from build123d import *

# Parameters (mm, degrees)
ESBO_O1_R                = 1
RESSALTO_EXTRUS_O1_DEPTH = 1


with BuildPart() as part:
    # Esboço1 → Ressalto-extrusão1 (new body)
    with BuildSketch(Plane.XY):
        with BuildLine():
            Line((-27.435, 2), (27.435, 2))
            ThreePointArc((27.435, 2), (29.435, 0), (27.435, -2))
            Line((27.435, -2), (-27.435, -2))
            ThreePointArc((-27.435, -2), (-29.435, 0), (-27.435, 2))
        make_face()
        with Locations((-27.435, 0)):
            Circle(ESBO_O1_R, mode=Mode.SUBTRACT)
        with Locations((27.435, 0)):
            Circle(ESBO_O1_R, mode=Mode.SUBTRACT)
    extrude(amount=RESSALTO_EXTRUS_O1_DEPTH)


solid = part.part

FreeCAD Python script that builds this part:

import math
import FreeCAD as App
import Part
import Sketcher
from FreeCAD import Vector
Q = App.Units.Quantity

doc = App.newDocument("Part")
params = doc.addObject("Spreadsheet::Sheet", "Params")
for row, (alias, value) in enumerate([
    ("sketch1_diameter", "2 mm"),
    ("sketch1_radius", "2 mm"),
    ("sketch1_width", "54.87 mm"),
    ("pad1_length", "1 mm"),
], start=1):
    params.set(f"A{row}", alias)
    params.set(f"B{row}", "=" + value)
    params.setAlias(f"B{row}", alias)

body = doc.addObject("PartDesign::Body", "Body")

# Sketch on XY plane
sketch1 = body.newObject("Sketcher::SketchObject", "Sketch")
sketch1.AttachmentSupport = (doc.getObject("XY_Plane"), [""])
sketch1.MapMode = "FlatFace"
sketch1.addGeometry(Part.LineSegment(Vector(27.4, 2, 0), Vector(-27.4, 2, 0)), False)
sketch1.addGeometry(Part.ArcOfCircle(Part.Circle(Vector(-27.4, 0, 0), Vector(0, 0, 1), 2), math.radians(90), math.radians(270)), False)
sketch1.addGeometry(Part.LineSegment(Vector(-27.4, -2, 0), Vector(27.4, -2, 0)), False)
sketch1.addGeometry(Part.ArcOfCircle(Part.Circle(Vector(27.4, 0, 0), Vector(0, 0, 1), 2), math.radians(-90), math.radians(90)), False)
sketch1.addGeometry(Part.Circle(Vector(27.4, 0, 0), Vector(0, 0, 1), 1), False)
sketch1.addGeometry(Part.Circle(Vector(-27.4, 0, 0), Vector(0, 0, 1), 1), False)
sketch1.addConstraint(Sketcher.Constraint("Tangent", 0, 2, 1, 1))
sketch1.addConstraint(Sketcher.Constraint("Tangent", 1, 2, 2, 1))
sketch1.addConstraint(Sketcher.Constraint("Tangent", 2, 2, 3, 1))
sketch1.addConstraint(Sketcher.Constraint("Tangent", 3, 2, 0, 1))
sketch1.addConstraint(Sketcher.Constraint("Horizontal", 0))
sketch1.addConstraint(Sketcher.Constraint("Horizontal", 2))
sketch1.addConstraint(Sketcher.Constraint("Coincident", 4, 3, 3, 3))
sketch1.addConstraint(Sketcher.Constraint("Coincident", 5, 3, 1, 3))
sketch1.addConstraint(Sketcher.Constraint("Equal", 4, 5))
sketch1.addConstraint(Sketcher.Constraint("Symmetric", 1, 3, 3, 3, -1, 1))
sketch1.addConstraint(Sketcher.Constraint("Diameter", 4, Q("2 mm")))
sketch1.addConstraint(Sketcher.Constraint("Radius", 1, Q("2 mm")))
sketch1.addConstraint(Sketcher.Constraint("DistanceX", 0, 2, 0, 1, Q("54.87 mm")))
sketch1.setExpression("Constraints[10]", "Params.sketch1_diameter")
sketch1.setExpression("Constraints[11]", "Params.sketch1_radius")
sketch1.setExpression("Constraints[12]", "Params.sketch1_width")
pad1 = body.newObject("PartDesign::Pad", "Pad")
pad1.Profile = sketch1
pad1.setExpression("Length", "Params.pad1_length")

doc.recompute()
